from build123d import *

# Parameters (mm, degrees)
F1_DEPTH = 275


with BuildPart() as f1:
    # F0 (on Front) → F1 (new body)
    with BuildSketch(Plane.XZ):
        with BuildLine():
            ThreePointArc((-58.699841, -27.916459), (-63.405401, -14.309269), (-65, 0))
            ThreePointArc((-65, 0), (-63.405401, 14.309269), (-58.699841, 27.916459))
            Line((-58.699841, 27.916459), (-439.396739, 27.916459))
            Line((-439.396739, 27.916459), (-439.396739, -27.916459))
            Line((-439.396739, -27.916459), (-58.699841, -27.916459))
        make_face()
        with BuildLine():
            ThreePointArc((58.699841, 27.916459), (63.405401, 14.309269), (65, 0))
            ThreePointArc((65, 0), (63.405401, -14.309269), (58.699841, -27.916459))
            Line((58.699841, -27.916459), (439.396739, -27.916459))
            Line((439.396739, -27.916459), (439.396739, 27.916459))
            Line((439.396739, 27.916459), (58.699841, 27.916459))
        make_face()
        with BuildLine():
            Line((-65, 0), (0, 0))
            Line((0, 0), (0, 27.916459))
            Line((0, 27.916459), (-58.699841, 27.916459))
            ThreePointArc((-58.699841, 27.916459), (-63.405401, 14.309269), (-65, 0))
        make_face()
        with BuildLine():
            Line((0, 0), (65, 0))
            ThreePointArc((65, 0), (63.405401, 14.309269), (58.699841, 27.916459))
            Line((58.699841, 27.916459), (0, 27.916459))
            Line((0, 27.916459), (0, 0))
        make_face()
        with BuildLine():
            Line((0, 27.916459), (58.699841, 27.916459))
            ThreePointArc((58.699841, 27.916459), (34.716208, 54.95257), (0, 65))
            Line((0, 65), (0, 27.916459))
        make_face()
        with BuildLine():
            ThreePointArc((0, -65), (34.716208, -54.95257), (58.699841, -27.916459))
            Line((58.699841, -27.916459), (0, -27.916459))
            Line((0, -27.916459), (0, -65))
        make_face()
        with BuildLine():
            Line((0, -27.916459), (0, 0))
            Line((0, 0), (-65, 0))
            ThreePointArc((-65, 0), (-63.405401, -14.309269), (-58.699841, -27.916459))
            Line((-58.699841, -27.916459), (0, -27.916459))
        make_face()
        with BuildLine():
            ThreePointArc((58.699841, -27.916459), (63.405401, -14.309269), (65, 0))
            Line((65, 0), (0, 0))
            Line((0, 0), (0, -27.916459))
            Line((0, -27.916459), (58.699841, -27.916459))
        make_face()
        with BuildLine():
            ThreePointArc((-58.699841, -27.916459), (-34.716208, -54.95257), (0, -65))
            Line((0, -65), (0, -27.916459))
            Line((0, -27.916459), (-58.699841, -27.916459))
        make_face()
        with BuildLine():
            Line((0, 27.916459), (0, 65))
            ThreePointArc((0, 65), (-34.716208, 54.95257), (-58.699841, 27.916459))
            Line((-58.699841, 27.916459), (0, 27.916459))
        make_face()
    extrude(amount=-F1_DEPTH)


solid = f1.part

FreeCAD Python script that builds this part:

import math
import FreeCAD as App
import Part
import Sketcher

doc = App.newDocument("Part")
body = doc.addObject("PartDesign::Body", "Body")

# Sketch on XZ plane
sketch1 = body.newObject("Sketcher::SketchObject", "Sketch")
sketch1.AttachmentSupport = (doc.getObject("XZ_Plane"), [""])
sketch1.MapMode = "FlatFace"
sketch1.addGeometry([
    Part.LineSegment(App.Vector(58.699841, -27.916459, 0), App.Vector(439.396739, -27.916459, 0)),  # 0
    Part.LineSegment(App.Vector(439.396739, -27.916459, 0), App.Vector(439.396739, 27.916459, 0)),  # 1
    Part.LineSegment(App.Vector(439.396739, 27.916459, 0), App.Vector(58.699841, 27.916459, 0)),  # 2
    Part.ArcOfCircle(Part.Circle(App.Vector(0.000001, 0.000002, 0), App.Vector(0, 0, 1), 64.999998), math.radians(25.434816), math.radians(90.000001)),  # 3
    Part.ArcOfCircle(Part.Circle(App.Vector(-0.000001, 0.000002, 0), App.Vector(0, 0, 1), 64.999998), math.radians(89.999999), math.radians(154.565184)),  # 4
    Part.LineSegment(App.Vector(-58.699841, 27.916459, 0), App.Vector(-439.396739, 27.916459, 0)),  # 5
    Part.LineSegment(App.Vector(-439.396739, 27.916459, 0), App.Vector(-439.396739, -27.916459, 0)),  # 6
    Part.LineSegment(App.Vector(-439.396739, -27.916459, 0), App.Vector(-58.699841, -27.916459, 0)),  # 7
    Part.ArcOfCircle(Part.Circle(App.Vector(-0.000001, -0.000002, 0), App.Vector(0, 0, 1), 64.999998), math.radians(-154.565184), math.radians(-89.999999)),  # 8
    Part.ArcOfCircle(Part.Circle(App.Vector(0.000001, -0.000002, 0), App.Vector(0, 0, 1), 64.999998), math.radians(-90.000001), math.radians(-25.434816)),  # 9
], False)
sketch1.addConstraint([
    Sketcher.Constraint("Coincident", 0, 2, 1, 1),
    Sketcher.Constraint("Coincident", 1, 2, 2, 1),
    Sketcher.Constraint("Coincident", 2, 2, 3, 1),
    Sketcher.Constraint("Tangent", 3, 2, 4, 1),
    Sketcher.Constraint("Coincident", 4, 2, 5, 1),
    Sketcher.Constraint("Coincident", 5, 2, 6, 1),
    Sketcher.Constraint("Coincident", 6, 2, 7, 1),
    Sketcher.Constraint("Coincident", 7, 2, 8, 1),
    Sketcher.Constraint("Tangent", 8, 2, 9, 1),
    Sketcher.Constraint("Coincident", 9, 2, 0, 1),
    Sketcher.Constraint("Horizontal", 0),
    Sketcher.Constraint("Vertical", 1),
    Sketcher.Constraint("Horizontal", 2),
    Sketcher.Constraint("Horizontal", 5),
    Sketcher.Constraint("Vertical", 6),
    Sketcher.Constraint("Horizontal", 7),
    Sketcher.Constraint("Coincident", 3, 3, -1, 1),
    Sketcher.Constraint("Coincident", 8, 3, -1, 1),
    Sketcher.Constraint("Equal", 3, 4),
    Sketcher.Constraint("Equal", 4, 8),
    Sketcher.Constraint("Equal", 8, 9),
    Sketcher.Constraint("Symmetric", 0, 2, 5, 2, -1, 1),
    Sketcher.Constraint("PointOnObject", 3, 2, -2),
    Sketcher.Constraint("PointOnObject", 8, 2, -2),
    Sketcher.Constraint("Horizontal", 2, 2, 4, 2),
    Sketcher.Constraint("Horizontal", 0, 2, 6, 2),
    Sketcher.Constraint("Radius", 3, 64.999998),
    Sketcher.Constraint("DistanceX", 0, 1, 0, 2, 380.696898),
    Sketcher.Constraint("DistanceY", 1, 1, 1, 2, 55.832918),
])
pad1 = body.newObject("PartDesign::Pad", "Pad")
pad1.Profile = sketch1
pad1.Length = 275
pad1.Reversed = True

doc.recompute()
